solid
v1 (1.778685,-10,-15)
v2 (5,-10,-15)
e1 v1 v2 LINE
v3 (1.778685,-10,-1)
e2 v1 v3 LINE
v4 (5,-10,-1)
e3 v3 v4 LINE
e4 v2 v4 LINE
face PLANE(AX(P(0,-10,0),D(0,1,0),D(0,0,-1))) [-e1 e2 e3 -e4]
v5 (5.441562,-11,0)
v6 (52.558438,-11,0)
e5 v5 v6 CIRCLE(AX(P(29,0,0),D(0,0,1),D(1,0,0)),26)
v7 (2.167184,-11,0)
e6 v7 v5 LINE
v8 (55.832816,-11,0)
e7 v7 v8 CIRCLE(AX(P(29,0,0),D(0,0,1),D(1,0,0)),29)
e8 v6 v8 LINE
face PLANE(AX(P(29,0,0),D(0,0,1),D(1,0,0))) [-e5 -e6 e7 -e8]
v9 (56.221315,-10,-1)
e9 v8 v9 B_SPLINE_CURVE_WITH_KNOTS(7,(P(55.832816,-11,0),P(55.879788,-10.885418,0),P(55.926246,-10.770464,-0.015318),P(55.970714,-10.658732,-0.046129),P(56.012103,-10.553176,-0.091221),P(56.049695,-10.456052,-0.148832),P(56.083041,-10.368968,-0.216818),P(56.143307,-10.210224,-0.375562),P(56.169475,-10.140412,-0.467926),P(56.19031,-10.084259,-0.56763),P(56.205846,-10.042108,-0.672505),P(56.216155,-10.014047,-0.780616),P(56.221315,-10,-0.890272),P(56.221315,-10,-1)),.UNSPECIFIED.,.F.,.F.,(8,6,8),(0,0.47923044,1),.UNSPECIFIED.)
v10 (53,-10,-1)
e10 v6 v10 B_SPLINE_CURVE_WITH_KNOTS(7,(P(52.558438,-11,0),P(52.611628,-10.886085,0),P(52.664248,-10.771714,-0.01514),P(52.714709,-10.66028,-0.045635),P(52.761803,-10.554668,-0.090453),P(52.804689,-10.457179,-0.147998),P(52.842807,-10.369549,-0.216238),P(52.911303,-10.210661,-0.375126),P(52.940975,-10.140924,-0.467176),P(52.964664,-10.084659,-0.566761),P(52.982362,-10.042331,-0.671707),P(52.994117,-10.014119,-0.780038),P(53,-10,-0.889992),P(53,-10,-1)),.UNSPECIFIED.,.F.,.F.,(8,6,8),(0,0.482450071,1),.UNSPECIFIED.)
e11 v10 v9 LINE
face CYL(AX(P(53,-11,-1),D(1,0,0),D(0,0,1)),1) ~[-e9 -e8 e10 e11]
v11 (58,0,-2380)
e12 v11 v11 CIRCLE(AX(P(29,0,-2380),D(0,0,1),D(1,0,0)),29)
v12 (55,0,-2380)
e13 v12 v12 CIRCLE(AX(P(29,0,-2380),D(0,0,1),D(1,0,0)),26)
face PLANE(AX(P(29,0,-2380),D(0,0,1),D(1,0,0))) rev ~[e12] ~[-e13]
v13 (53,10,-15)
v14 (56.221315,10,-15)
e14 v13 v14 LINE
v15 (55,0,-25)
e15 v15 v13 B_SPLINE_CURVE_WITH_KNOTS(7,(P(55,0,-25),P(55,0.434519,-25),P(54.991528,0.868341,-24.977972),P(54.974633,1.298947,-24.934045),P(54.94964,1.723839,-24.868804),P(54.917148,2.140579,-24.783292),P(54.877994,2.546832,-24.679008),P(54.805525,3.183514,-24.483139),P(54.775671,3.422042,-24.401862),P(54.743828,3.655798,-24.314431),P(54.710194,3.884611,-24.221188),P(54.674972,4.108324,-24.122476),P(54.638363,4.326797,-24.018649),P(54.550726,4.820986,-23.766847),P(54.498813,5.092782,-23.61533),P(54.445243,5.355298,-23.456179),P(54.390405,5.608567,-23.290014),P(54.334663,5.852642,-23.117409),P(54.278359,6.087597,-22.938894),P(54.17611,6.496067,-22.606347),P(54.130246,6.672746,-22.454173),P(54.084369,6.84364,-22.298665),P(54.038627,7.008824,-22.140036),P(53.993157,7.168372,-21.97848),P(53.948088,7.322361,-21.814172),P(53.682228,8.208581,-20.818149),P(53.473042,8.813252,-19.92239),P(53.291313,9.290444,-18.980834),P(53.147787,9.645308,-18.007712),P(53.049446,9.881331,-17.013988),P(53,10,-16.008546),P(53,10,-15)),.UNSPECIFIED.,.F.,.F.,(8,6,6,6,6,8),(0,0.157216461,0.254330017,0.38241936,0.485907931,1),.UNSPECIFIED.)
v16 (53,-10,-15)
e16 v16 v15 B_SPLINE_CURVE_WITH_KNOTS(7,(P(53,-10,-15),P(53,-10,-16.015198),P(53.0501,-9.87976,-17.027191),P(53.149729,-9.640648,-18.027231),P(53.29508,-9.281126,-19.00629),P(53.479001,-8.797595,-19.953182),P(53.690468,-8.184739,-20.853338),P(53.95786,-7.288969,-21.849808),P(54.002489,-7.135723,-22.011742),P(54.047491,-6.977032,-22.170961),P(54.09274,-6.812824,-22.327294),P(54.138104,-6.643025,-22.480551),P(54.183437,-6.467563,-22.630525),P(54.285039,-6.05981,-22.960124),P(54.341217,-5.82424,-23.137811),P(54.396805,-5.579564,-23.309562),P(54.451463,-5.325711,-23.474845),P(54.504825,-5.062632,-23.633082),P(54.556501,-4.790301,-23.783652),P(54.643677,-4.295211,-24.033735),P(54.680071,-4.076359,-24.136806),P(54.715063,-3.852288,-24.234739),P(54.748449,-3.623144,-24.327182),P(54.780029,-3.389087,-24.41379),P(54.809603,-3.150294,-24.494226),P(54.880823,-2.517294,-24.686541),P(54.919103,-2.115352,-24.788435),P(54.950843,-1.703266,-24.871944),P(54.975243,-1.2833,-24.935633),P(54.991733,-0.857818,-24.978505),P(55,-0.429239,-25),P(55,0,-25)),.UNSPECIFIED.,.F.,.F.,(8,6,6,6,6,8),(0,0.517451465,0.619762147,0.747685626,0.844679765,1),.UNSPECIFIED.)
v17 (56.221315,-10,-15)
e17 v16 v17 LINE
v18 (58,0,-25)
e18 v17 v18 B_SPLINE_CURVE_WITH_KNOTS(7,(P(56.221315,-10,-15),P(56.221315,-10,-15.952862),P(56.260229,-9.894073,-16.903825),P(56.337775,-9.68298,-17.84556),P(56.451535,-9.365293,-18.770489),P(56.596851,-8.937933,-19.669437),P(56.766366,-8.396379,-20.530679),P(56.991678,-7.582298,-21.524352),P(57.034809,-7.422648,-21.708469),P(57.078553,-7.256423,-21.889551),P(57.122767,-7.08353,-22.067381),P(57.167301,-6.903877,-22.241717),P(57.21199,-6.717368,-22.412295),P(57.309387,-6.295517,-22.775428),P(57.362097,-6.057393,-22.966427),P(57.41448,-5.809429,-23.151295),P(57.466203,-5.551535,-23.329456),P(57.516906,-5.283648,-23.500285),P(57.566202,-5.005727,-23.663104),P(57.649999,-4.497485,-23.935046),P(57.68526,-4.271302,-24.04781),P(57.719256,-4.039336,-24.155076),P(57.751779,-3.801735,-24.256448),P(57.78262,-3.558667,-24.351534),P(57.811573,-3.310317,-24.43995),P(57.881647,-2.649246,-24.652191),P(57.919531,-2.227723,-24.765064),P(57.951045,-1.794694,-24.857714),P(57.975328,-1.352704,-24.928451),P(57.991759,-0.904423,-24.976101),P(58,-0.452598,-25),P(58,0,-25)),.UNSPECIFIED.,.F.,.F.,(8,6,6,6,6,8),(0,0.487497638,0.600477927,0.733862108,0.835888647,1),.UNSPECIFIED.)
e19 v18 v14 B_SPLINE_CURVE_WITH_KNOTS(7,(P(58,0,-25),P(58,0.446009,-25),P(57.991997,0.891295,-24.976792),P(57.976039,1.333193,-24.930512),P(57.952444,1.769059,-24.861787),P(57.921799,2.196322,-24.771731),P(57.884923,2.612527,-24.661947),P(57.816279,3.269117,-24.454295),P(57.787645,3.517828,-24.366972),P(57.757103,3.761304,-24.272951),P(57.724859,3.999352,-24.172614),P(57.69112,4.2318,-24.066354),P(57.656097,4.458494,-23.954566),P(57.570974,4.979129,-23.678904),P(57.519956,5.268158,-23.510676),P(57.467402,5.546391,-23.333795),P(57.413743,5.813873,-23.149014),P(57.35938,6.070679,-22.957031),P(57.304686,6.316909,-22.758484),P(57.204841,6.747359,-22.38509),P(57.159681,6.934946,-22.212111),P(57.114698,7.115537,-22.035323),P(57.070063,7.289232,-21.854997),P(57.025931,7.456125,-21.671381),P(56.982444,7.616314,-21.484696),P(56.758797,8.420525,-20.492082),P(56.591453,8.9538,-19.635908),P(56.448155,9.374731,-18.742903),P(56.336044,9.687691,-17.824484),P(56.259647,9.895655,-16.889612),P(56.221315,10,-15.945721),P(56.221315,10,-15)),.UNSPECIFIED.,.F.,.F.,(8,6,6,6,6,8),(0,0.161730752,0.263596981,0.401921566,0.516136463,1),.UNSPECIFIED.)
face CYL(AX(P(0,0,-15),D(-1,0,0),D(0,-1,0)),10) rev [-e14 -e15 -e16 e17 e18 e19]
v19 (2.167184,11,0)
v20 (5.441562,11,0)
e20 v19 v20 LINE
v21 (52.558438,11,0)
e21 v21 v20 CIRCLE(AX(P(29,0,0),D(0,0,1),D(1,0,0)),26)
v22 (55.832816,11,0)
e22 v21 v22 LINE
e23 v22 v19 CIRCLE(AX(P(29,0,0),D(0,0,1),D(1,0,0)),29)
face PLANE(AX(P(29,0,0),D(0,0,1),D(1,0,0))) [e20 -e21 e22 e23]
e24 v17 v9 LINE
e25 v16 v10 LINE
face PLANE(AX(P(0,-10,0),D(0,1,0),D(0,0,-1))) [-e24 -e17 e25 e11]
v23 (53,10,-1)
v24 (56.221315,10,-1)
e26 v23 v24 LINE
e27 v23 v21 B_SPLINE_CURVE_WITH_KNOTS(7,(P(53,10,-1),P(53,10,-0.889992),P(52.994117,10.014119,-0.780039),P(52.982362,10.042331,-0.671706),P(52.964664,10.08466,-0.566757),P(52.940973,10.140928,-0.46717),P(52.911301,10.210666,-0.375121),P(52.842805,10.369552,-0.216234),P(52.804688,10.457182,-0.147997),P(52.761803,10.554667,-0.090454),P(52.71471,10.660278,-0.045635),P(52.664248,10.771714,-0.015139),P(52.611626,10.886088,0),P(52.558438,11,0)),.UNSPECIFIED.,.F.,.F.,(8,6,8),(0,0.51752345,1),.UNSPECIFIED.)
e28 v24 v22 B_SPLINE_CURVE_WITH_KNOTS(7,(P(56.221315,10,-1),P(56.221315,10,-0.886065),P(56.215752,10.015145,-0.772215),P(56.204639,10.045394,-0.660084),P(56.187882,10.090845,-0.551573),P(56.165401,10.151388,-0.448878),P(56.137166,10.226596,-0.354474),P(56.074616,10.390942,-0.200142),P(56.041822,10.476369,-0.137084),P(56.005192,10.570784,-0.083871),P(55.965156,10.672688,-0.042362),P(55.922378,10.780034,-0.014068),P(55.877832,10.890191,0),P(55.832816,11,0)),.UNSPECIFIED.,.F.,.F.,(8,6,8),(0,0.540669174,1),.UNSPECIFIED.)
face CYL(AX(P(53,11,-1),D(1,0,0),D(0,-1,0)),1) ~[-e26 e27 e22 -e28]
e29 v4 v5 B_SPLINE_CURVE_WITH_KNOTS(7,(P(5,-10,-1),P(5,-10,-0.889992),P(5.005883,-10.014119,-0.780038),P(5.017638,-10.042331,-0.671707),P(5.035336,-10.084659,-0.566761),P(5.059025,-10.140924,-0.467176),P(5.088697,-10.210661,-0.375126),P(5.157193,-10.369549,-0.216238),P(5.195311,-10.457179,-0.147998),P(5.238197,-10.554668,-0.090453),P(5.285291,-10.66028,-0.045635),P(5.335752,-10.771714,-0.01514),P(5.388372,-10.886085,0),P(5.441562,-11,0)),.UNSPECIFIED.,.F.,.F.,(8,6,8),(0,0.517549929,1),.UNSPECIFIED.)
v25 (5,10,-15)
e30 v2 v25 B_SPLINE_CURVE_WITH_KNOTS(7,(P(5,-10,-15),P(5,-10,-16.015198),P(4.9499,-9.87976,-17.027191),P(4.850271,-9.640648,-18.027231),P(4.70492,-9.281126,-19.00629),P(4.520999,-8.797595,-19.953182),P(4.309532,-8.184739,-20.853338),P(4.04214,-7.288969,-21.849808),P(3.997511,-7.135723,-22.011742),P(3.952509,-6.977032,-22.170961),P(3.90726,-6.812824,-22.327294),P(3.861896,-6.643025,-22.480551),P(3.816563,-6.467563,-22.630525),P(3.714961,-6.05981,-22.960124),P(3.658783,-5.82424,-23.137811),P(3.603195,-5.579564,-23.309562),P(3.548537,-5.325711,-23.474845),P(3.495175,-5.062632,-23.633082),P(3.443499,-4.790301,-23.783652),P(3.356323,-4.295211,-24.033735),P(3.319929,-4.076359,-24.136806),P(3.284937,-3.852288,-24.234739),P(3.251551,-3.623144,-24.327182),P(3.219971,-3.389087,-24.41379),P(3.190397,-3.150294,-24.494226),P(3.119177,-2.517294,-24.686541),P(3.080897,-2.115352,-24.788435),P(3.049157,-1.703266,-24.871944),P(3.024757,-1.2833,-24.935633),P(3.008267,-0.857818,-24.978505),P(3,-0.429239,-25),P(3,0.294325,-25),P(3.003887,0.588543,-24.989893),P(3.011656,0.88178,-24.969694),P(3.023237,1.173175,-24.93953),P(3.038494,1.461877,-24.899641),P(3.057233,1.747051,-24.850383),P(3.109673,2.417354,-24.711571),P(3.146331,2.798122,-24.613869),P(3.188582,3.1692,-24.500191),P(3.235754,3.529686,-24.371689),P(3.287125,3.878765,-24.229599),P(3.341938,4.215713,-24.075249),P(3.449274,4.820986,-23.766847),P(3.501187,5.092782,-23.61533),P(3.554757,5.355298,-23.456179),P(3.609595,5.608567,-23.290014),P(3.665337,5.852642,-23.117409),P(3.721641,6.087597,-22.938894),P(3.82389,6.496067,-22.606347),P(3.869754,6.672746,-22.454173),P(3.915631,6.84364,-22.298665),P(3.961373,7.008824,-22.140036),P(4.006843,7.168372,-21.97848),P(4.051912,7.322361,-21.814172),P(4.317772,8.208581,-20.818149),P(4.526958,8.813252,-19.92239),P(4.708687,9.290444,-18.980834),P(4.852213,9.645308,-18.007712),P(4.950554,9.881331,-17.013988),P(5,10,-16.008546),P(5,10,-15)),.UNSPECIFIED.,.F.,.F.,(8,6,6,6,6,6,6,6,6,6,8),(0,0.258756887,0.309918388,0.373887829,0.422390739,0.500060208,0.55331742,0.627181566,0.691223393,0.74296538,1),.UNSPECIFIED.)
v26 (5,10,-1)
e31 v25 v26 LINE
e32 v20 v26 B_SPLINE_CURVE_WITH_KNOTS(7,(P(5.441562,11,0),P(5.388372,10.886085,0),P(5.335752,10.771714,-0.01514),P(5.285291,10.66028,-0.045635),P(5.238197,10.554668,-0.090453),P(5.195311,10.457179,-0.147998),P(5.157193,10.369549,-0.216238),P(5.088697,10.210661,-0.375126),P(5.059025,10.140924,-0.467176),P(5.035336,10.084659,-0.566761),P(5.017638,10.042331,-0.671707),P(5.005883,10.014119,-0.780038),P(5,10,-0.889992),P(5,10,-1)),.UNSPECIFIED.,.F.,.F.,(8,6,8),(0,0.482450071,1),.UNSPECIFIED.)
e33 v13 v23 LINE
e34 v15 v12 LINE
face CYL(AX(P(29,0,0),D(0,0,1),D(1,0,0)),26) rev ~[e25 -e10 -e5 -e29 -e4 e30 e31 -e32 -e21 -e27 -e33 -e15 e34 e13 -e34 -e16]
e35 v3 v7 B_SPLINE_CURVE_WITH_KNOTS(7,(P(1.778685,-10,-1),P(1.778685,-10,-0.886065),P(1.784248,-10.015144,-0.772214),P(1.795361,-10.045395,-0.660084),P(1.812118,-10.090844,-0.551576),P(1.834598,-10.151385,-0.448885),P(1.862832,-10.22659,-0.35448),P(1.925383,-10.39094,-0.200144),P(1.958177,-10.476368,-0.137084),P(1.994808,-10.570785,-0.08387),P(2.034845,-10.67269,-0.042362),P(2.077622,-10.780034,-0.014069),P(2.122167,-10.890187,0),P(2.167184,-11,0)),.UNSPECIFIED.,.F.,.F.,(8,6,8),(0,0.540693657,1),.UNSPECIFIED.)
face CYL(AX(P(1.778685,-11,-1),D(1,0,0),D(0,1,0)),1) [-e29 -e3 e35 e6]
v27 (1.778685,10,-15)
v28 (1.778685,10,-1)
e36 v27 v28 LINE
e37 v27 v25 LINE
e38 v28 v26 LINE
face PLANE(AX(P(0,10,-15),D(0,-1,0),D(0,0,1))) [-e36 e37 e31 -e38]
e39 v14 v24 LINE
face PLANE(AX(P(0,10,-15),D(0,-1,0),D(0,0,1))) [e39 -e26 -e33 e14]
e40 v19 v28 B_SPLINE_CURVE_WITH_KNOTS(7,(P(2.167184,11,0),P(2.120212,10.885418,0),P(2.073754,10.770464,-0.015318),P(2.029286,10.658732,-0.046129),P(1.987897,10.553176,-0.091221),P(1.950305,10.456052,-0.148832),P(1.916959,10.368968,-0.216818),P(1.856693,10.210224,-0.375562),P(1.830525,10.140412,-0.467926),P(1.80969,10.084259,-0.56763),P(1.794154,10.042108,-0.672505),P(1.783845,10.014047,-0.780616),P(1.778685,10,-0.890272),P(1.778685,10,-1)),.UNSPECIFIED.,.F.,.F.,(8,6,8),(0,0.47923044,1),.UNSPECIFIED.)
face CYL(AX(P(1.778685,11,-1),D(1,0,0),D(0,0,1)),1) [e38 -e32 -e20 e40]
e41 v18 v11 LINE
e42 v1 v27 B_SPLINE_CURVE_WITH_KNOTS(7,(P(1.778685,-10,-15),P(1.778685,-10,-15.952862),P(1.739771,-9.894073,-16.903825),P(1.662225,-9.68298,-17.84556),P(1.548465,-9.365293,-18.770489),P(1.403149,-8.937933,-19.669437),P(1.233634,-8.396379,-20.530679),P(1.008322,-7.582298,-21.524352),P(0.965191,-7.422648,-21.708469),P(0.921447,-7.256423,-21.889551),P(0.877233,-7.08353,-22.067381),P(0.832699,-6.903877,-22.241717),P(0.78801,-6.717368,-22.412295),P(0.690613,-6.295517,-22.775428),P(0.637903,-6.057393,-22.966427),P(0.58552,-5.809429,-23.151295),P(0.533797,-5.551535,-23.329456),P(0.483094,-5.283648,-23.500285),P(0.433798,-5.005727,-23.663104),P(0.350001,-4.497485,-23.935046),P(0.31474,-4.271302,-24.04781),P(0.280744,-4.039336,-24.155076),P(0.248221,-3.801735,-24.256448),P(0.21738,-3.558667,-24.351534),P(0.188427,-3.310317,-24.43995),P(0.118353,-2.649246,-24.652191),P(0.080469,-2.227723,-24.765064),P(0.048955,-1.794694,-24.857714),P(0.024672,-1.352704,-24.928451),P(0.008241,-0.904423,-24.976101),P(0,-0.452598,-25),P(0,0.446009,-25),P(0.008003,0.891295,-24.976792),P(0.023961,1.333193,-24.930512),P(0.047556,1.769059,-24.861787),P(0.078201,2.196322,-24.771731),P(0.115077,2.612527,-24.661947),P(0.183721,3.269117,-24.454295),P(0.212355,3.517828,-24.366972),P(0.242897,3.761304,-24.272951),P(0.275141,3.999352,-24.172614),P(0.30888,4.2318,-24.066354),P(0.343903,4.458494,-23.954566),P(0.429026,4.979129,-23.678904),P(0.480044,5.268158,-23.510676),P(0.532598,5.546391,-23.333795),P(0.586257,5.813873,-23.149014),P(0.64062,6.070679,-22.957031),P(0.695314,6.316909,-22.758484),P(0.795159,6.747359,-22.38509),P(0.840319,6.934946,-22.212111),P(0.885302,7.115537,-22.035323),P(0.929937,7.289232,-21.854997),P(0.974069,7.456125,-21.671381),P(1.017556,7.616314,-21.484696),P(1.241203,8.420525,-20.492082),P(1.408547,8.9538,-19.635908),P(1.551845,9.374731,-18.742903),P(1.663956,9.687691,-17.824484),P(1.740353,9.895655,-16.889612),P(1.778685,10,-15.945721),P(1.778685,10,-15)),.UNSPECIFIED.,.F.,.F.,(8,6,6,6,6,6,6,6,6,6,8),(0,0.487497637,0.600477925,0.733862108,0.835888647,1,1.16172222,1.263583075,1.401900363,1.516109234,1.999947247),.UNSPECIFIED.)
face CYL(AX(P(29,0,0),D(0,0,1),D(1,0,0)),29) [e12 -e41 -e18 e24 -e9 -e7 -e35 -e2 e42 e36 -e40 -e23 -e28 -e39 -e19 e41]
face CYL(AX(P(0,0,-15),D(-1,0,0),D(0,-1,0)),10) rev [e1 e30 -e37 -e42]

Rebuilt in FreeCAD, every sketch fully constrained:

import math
import FreeCAD as App
import Part
import Sketcher
from FreeCAD import Vector


def edges_at(feature, points):
    """Names of the edges that pass closest to the given points."""
    edges = feature.Shape.Edges
    near = lambda p: min(range(len(edges)), key=lambda i: edges[i].distToShape(Part.Vertex(*p))[0])
    return sorted({f"Edge{near(p) + 1}" for p in points})

doc = App.newDocument("Part")
body = doc.addObject("PartDesign::Body", "Body")

# Sketch on XY plane
sketch1 = body.newObject("Sketcher::SketchObject", "Sketch")
sketch1.AttachmentSupport = (doc.getObject("XY_Plane"), [""])
sketch1.MapMode = "FlatFace"
sketch1.addGeometry(Part.Circle(Vector(29, 0, 0), Vector(0, 0, 1), 29), False)
sketch1.addGeometry(Part.Circle(Vector(29, 0, 0), Vector(0, 0, 1), 26), False)
sketch1.addConstraint(Sketcher.Constraint("Coincident", 1, 3, 0, 3))
sketch1.addConstraint(Sketcher.Constraint("PointOnObject", 0, 3, -1))
sketch1.addConstraint(Sketcher.Constraint("Diameter", 0, 58.0))
sketch1.addConstraint(Sketcher.Constraint("Diameter", 1, 52.0))
sketch1.addConstraint(Sketcher.Constraint("DistanceX", -1, 1, 0, 3, 29.0))
pad1 = body.newObject("PartDesign::Pad", "Pad")
pad1.Profile = sketch1
pad1.Length = 2380
pad1.Reversed = True

# Sketch on YZ plane
sketch2 = body.newObject("Sketcher::SketchObject", "Sketch001")
sketch2.AttachmentSupport = (doc.getObject("YZ_Plane"), [""])
sketch2.MapMode = "FlatFace"
sketch2.addGeometry(Part.LineSegment(Vector(10, 0, 0), Vector(-10, 0, 0)), False)
sketch2.addGeometry(Part.LineSegment(Vector(-10, 0, 0), Vector(-10, -15, 0)), False)
sketch2.addGeometry(Part.ArcOfCircle(Part.Circle(Vector(0, -15, 0), Vector(0, 0, 1), 10), math.radians(180), math.radians(360)), False)
sketch2.addGeometry(Part.LineSegment(Vector(10, -15, 0), Vector(10, 0, 0)), False)
sketch2.addConstraint(Sketcher.Constraint("Coincident", 0, 2, 1, 1))
sketch2.addConstraint(Sketcher.Constraint("Tangent", 1, 2, 2, 1))
sketch2.addConstraint(Sketcher.Constraint("Tangent", 2, 2, 3, 1))
sketch2.addConstraint(Sketcher.Constraint("Coincident", 3, 2, 0, 1))
sketch2.addConstraint(Sketcher.Constraint("Horizontal", 0))
sketch2.addConstraint(Sketcher.Constraint("Vertical", 1))
sketch2.addConstraint(Sketcher.Constraint("Vertical", 3))
sketch2.addConstraint(Sketcher.Constraint("Symmetric", 0, 2, 3, 2, -1, 1))
sketch2.addConstraint(Sketcher.Constraint("Radius", 2, 10.0))
sketch2.addConstraint(Sketcher.Constraint("DistanceY", 1, 2, 1, 1, 15.0))
pocket1 = body.newObject("PartDesign::Pocket", "Pocket")
pocket1.Profile = sketch2
pocket1.Type = "ThroughAll"
pocket1.Reversed = True
doc.recompute()

fillet = body.newObject("PartDesign::Fillet", "Fillet")
fillet.Base = (pocket1, edges_at(pocket1, [
    (3.389, 10, 0),
    (54.611, 10, 0),
    (3.389, -10, 0),
    (54.611, -10, 0),
]))
fillet.Radius = 1

doc.recompute()
